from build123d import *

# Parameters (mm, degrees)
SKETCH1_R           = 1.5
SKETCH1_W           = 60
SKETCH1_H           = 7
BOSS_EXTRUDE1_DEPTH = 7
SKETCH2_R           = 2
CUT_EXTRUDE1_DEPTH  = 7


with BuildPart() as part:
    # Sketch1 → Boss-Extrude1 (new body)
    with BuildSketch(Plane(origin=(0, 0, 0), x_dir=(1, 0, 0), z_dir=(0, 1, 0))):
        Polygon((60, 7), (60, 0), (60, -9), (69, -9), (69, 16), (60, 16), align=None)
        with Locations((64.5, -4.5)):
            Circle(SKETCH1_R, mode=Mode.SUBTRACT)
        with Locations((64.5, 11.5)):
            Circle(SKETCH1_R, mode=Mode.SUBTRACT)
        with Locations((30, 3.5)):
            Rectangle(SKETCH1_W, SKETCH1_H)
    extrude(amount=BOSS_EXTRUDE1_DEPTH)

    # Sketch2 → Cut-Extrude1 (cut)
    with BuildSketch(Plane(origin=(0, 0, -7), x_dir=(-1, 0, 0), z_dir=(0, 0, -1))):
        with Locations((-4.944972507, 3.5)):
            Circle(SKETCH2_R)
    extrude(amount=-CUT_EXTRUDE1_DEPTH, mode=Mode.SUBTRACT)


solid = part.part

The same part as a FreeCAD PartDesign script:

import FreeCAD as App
import Part
import Sketcher
from FreeCAD import Vector

doc = App.newDocument("Part")
params = doc.addObject("Spreadsheet::Sheet", "Params")
for row, (alias, value) in enumerate([
    ("sketch1_diameter", "3 mm"),
    ("sketch1_width", "9 mm"),
    ("sketch1_width2", "60 mm"),
    ("sketch1_height", "25 mm"),
    ("pad1_length", "7 mm"),
    ("sketch2_diameter", "4 mm"),
    ("pocket1_length", "7 mm"),
], start=1):
    params.set(f"A{row}", alias)
    params.set(f"B{row}", "=" + value)
    params.setAlias(f"B{row}", alias)

body = doc.addObject("PartDesign::Body", "Body")

sketch1 = body.newObject("Sketcher::SketchObject", "Sketch")
sketch1.AttachmentSupport = (doc.getObject("XZ_Plane"), [""])
sketch1.MapMode = "FlatFace"
sketch1.addGeometry(Part.LineSegment(Vector(60, 9, 0), Vector(69, 9, 0)), False)
sketch1.addGeometry(Part.LineSegment(Vector(69, 9, 0), Vector(69, -16, 0)), False)
sketch1.addGeometry(Part.LineSegment(Vector(69, -16, 0), Vector(60, -16, 0)), False)
sketch1.addGeometry(Part.LineSegment(Vector(60, -16, 0), Vector(60, -7, 0)), False)
sketch1.addGeometry(Part.LineSegment(Vector(60, -7, 0), Vector(0, -7, 0)), False)
sketch1.addGeometry(Part.LineSegment(Vector(0, -7, 0), Vector(0, 0, 0)), False)
sketch1.addGeometry(Part.LineSegment(Vector(0, 0, 0), Vector(60, 0, 0)), False)
sketch1.addGeometry(Part.LineSegment(Vector(60, 0, 0), Vector(60, 9, 0)), False)
sketch1.addGeometry(Part.Circle(Vector(64.5, 4.5, 0), Vector(0, 0, 1), 1.5), False)
sketch1.addGeometry(Part.Circle(Vector(64.5, -11.5, 0), Vector(0, 0, 1), 1.5), False)
sketch1.addConstraint(Sketcher.Constraint("Coincident", 0, 2, 1, 1))
sketch1.addConstraint(Sketcher.Constraint("Coincident", 1, 2, 2, 1))
sketch1.addConstraint(Sketcher.Constraint("Coincident", 2, 2, 3, 1))
sketch1.addConstraint(Sketcher.Constraint("Coincident", 3, 2, 4, 1))
sketch1.addConstraint(Sketcher.Constraint("Coincident", 4, 2, 5, 1))
sketch1.addConstraint(Sketcher.Constraint("Coincident", 5, 2, 6, 1))
sketch1.addConstraint(Sketcher.Constraint("Coincident", 6, 2, 7, 1))
sketch1.addConstraint(Sketcher.Constraint("Coincident", 7, 2, 0, 1))
sketch1.addConstraint(Sketcher.Constraint("Horizontal", 0))
sketch1.addConstraint(Sketcher.Constraint("Vertical", 1))
sketch1.addConstraint(Sketcher.Constraint("Horizontal", 2))
sketch1.addConstraint(Sketcher.Constraint("Vertical", 3))
sketch1.addConstraint(Sketcher.Constraint("Horizontal", 4))
sketch1.addConstraint(Sketcher.Constraint("Vertical", 5))
sketch1.addConstraint(Sketcher.Constraint("Horizontal", 6))
sketch1.addConstraint(Sketcher.Constraint("Vertical", 7))
sketch1.addConstraint(Sketcher.Constraint("Coincident", 5, 2, -1, 1))
sketch1.addConstraint(Sketcher.Constraint("Equal", 8, 9))
sketch1.addConstraint(Sketcher.Constraint("Vertical", 8, 3, 9, 3))
sketch1.addConstraint(Sketcher.Constraint("Vertical", 3, 2, 6, 2))
sketch1.addConstraint(Sketcher.Constraint("Equal", 2, 3))
sketch1.addConstraint(Sketcher.Constraint("Equal", 3, 7))
sketch1.addConstraint(Sketcher.Constraint("Diameter", 8, 3.0))
sketch1.addConstraint(Sketcher.Constraint("DistanceX", 0, 1, 0, 2, 9.0))
sketch1.addConstraint(Sketcher.Constraint("DistanceX", 4, 2, 4, 1, 60.0))
sketch1.addConstraint(Sketcher.Constraint("DistanceY", 1, 2, 1, 1, 25.0))
sketch1.addConstraint(Sketcher.Constraint("DistanceY", 9, 3, 8, 3, 16.0))
sketch1.addConstraint(Sketcher.Constraint("DistanceX", -1, 1, 8, 3, 64.5))
sketch1.addConstraint(Sketcher.Constraint("DistanceY", -1, 1, 8, 3, 4.5))
sketch1.setExpression("Constraints[22]", "Params.sketch1_diameter")
sketch1.setExpression("Constraints[23]", "Params.sketch1_width")
sketch1.setExpression("Constraints[24]", "Params.sketch1_width2")
sketch1.setExpression("Constraints[25]", "Params.sketch1_height")
pad1 = body.newObject("PartDesign::Pad", "Pad")
pad1.Profile = sketch1
pad1.setExpression("Length", "Params.pad1_length")
pad1.Reversed = True

sketch2 = body.newObject("Sketcher::SketchObject", "Sketch001")
sketch2.AttachmentSupport = (doc.getObject("XY_Plane"), [""])
sketch2.MapMode = "FlatFace"
sketch2.AttachmentOffset = App.Placement(Vector(0, 0, -7), App.Rotation())
sketch2.addGeometry(Part.Circle(Vector(4.944973, 3.5, 0), Vector(0, 0, 1), 2), False)
sketch2.addConstraint(Sketcher.Constraint("Diameter", 0, 4.0))
sketch2.addConstraint(Sketcher.Constraint("DistanceY", -1, 1, 0, 3, 3.5))
sketch2.addConstraint(Sketcher.Constraint("DistanceX", -1, 1, 0, 3, 4.944973))
sketch2.setExpression("Constraints[0]", "Params.sketch2_diameter")
pocket1 = body.newObject("PartDesign::Pocket", "Pocket")
pocket1.Profile = sketch2
pocket1.setExpression("Length", "Params.pocket1_length")
pocket1.Reversed = True

doc.recompute()
